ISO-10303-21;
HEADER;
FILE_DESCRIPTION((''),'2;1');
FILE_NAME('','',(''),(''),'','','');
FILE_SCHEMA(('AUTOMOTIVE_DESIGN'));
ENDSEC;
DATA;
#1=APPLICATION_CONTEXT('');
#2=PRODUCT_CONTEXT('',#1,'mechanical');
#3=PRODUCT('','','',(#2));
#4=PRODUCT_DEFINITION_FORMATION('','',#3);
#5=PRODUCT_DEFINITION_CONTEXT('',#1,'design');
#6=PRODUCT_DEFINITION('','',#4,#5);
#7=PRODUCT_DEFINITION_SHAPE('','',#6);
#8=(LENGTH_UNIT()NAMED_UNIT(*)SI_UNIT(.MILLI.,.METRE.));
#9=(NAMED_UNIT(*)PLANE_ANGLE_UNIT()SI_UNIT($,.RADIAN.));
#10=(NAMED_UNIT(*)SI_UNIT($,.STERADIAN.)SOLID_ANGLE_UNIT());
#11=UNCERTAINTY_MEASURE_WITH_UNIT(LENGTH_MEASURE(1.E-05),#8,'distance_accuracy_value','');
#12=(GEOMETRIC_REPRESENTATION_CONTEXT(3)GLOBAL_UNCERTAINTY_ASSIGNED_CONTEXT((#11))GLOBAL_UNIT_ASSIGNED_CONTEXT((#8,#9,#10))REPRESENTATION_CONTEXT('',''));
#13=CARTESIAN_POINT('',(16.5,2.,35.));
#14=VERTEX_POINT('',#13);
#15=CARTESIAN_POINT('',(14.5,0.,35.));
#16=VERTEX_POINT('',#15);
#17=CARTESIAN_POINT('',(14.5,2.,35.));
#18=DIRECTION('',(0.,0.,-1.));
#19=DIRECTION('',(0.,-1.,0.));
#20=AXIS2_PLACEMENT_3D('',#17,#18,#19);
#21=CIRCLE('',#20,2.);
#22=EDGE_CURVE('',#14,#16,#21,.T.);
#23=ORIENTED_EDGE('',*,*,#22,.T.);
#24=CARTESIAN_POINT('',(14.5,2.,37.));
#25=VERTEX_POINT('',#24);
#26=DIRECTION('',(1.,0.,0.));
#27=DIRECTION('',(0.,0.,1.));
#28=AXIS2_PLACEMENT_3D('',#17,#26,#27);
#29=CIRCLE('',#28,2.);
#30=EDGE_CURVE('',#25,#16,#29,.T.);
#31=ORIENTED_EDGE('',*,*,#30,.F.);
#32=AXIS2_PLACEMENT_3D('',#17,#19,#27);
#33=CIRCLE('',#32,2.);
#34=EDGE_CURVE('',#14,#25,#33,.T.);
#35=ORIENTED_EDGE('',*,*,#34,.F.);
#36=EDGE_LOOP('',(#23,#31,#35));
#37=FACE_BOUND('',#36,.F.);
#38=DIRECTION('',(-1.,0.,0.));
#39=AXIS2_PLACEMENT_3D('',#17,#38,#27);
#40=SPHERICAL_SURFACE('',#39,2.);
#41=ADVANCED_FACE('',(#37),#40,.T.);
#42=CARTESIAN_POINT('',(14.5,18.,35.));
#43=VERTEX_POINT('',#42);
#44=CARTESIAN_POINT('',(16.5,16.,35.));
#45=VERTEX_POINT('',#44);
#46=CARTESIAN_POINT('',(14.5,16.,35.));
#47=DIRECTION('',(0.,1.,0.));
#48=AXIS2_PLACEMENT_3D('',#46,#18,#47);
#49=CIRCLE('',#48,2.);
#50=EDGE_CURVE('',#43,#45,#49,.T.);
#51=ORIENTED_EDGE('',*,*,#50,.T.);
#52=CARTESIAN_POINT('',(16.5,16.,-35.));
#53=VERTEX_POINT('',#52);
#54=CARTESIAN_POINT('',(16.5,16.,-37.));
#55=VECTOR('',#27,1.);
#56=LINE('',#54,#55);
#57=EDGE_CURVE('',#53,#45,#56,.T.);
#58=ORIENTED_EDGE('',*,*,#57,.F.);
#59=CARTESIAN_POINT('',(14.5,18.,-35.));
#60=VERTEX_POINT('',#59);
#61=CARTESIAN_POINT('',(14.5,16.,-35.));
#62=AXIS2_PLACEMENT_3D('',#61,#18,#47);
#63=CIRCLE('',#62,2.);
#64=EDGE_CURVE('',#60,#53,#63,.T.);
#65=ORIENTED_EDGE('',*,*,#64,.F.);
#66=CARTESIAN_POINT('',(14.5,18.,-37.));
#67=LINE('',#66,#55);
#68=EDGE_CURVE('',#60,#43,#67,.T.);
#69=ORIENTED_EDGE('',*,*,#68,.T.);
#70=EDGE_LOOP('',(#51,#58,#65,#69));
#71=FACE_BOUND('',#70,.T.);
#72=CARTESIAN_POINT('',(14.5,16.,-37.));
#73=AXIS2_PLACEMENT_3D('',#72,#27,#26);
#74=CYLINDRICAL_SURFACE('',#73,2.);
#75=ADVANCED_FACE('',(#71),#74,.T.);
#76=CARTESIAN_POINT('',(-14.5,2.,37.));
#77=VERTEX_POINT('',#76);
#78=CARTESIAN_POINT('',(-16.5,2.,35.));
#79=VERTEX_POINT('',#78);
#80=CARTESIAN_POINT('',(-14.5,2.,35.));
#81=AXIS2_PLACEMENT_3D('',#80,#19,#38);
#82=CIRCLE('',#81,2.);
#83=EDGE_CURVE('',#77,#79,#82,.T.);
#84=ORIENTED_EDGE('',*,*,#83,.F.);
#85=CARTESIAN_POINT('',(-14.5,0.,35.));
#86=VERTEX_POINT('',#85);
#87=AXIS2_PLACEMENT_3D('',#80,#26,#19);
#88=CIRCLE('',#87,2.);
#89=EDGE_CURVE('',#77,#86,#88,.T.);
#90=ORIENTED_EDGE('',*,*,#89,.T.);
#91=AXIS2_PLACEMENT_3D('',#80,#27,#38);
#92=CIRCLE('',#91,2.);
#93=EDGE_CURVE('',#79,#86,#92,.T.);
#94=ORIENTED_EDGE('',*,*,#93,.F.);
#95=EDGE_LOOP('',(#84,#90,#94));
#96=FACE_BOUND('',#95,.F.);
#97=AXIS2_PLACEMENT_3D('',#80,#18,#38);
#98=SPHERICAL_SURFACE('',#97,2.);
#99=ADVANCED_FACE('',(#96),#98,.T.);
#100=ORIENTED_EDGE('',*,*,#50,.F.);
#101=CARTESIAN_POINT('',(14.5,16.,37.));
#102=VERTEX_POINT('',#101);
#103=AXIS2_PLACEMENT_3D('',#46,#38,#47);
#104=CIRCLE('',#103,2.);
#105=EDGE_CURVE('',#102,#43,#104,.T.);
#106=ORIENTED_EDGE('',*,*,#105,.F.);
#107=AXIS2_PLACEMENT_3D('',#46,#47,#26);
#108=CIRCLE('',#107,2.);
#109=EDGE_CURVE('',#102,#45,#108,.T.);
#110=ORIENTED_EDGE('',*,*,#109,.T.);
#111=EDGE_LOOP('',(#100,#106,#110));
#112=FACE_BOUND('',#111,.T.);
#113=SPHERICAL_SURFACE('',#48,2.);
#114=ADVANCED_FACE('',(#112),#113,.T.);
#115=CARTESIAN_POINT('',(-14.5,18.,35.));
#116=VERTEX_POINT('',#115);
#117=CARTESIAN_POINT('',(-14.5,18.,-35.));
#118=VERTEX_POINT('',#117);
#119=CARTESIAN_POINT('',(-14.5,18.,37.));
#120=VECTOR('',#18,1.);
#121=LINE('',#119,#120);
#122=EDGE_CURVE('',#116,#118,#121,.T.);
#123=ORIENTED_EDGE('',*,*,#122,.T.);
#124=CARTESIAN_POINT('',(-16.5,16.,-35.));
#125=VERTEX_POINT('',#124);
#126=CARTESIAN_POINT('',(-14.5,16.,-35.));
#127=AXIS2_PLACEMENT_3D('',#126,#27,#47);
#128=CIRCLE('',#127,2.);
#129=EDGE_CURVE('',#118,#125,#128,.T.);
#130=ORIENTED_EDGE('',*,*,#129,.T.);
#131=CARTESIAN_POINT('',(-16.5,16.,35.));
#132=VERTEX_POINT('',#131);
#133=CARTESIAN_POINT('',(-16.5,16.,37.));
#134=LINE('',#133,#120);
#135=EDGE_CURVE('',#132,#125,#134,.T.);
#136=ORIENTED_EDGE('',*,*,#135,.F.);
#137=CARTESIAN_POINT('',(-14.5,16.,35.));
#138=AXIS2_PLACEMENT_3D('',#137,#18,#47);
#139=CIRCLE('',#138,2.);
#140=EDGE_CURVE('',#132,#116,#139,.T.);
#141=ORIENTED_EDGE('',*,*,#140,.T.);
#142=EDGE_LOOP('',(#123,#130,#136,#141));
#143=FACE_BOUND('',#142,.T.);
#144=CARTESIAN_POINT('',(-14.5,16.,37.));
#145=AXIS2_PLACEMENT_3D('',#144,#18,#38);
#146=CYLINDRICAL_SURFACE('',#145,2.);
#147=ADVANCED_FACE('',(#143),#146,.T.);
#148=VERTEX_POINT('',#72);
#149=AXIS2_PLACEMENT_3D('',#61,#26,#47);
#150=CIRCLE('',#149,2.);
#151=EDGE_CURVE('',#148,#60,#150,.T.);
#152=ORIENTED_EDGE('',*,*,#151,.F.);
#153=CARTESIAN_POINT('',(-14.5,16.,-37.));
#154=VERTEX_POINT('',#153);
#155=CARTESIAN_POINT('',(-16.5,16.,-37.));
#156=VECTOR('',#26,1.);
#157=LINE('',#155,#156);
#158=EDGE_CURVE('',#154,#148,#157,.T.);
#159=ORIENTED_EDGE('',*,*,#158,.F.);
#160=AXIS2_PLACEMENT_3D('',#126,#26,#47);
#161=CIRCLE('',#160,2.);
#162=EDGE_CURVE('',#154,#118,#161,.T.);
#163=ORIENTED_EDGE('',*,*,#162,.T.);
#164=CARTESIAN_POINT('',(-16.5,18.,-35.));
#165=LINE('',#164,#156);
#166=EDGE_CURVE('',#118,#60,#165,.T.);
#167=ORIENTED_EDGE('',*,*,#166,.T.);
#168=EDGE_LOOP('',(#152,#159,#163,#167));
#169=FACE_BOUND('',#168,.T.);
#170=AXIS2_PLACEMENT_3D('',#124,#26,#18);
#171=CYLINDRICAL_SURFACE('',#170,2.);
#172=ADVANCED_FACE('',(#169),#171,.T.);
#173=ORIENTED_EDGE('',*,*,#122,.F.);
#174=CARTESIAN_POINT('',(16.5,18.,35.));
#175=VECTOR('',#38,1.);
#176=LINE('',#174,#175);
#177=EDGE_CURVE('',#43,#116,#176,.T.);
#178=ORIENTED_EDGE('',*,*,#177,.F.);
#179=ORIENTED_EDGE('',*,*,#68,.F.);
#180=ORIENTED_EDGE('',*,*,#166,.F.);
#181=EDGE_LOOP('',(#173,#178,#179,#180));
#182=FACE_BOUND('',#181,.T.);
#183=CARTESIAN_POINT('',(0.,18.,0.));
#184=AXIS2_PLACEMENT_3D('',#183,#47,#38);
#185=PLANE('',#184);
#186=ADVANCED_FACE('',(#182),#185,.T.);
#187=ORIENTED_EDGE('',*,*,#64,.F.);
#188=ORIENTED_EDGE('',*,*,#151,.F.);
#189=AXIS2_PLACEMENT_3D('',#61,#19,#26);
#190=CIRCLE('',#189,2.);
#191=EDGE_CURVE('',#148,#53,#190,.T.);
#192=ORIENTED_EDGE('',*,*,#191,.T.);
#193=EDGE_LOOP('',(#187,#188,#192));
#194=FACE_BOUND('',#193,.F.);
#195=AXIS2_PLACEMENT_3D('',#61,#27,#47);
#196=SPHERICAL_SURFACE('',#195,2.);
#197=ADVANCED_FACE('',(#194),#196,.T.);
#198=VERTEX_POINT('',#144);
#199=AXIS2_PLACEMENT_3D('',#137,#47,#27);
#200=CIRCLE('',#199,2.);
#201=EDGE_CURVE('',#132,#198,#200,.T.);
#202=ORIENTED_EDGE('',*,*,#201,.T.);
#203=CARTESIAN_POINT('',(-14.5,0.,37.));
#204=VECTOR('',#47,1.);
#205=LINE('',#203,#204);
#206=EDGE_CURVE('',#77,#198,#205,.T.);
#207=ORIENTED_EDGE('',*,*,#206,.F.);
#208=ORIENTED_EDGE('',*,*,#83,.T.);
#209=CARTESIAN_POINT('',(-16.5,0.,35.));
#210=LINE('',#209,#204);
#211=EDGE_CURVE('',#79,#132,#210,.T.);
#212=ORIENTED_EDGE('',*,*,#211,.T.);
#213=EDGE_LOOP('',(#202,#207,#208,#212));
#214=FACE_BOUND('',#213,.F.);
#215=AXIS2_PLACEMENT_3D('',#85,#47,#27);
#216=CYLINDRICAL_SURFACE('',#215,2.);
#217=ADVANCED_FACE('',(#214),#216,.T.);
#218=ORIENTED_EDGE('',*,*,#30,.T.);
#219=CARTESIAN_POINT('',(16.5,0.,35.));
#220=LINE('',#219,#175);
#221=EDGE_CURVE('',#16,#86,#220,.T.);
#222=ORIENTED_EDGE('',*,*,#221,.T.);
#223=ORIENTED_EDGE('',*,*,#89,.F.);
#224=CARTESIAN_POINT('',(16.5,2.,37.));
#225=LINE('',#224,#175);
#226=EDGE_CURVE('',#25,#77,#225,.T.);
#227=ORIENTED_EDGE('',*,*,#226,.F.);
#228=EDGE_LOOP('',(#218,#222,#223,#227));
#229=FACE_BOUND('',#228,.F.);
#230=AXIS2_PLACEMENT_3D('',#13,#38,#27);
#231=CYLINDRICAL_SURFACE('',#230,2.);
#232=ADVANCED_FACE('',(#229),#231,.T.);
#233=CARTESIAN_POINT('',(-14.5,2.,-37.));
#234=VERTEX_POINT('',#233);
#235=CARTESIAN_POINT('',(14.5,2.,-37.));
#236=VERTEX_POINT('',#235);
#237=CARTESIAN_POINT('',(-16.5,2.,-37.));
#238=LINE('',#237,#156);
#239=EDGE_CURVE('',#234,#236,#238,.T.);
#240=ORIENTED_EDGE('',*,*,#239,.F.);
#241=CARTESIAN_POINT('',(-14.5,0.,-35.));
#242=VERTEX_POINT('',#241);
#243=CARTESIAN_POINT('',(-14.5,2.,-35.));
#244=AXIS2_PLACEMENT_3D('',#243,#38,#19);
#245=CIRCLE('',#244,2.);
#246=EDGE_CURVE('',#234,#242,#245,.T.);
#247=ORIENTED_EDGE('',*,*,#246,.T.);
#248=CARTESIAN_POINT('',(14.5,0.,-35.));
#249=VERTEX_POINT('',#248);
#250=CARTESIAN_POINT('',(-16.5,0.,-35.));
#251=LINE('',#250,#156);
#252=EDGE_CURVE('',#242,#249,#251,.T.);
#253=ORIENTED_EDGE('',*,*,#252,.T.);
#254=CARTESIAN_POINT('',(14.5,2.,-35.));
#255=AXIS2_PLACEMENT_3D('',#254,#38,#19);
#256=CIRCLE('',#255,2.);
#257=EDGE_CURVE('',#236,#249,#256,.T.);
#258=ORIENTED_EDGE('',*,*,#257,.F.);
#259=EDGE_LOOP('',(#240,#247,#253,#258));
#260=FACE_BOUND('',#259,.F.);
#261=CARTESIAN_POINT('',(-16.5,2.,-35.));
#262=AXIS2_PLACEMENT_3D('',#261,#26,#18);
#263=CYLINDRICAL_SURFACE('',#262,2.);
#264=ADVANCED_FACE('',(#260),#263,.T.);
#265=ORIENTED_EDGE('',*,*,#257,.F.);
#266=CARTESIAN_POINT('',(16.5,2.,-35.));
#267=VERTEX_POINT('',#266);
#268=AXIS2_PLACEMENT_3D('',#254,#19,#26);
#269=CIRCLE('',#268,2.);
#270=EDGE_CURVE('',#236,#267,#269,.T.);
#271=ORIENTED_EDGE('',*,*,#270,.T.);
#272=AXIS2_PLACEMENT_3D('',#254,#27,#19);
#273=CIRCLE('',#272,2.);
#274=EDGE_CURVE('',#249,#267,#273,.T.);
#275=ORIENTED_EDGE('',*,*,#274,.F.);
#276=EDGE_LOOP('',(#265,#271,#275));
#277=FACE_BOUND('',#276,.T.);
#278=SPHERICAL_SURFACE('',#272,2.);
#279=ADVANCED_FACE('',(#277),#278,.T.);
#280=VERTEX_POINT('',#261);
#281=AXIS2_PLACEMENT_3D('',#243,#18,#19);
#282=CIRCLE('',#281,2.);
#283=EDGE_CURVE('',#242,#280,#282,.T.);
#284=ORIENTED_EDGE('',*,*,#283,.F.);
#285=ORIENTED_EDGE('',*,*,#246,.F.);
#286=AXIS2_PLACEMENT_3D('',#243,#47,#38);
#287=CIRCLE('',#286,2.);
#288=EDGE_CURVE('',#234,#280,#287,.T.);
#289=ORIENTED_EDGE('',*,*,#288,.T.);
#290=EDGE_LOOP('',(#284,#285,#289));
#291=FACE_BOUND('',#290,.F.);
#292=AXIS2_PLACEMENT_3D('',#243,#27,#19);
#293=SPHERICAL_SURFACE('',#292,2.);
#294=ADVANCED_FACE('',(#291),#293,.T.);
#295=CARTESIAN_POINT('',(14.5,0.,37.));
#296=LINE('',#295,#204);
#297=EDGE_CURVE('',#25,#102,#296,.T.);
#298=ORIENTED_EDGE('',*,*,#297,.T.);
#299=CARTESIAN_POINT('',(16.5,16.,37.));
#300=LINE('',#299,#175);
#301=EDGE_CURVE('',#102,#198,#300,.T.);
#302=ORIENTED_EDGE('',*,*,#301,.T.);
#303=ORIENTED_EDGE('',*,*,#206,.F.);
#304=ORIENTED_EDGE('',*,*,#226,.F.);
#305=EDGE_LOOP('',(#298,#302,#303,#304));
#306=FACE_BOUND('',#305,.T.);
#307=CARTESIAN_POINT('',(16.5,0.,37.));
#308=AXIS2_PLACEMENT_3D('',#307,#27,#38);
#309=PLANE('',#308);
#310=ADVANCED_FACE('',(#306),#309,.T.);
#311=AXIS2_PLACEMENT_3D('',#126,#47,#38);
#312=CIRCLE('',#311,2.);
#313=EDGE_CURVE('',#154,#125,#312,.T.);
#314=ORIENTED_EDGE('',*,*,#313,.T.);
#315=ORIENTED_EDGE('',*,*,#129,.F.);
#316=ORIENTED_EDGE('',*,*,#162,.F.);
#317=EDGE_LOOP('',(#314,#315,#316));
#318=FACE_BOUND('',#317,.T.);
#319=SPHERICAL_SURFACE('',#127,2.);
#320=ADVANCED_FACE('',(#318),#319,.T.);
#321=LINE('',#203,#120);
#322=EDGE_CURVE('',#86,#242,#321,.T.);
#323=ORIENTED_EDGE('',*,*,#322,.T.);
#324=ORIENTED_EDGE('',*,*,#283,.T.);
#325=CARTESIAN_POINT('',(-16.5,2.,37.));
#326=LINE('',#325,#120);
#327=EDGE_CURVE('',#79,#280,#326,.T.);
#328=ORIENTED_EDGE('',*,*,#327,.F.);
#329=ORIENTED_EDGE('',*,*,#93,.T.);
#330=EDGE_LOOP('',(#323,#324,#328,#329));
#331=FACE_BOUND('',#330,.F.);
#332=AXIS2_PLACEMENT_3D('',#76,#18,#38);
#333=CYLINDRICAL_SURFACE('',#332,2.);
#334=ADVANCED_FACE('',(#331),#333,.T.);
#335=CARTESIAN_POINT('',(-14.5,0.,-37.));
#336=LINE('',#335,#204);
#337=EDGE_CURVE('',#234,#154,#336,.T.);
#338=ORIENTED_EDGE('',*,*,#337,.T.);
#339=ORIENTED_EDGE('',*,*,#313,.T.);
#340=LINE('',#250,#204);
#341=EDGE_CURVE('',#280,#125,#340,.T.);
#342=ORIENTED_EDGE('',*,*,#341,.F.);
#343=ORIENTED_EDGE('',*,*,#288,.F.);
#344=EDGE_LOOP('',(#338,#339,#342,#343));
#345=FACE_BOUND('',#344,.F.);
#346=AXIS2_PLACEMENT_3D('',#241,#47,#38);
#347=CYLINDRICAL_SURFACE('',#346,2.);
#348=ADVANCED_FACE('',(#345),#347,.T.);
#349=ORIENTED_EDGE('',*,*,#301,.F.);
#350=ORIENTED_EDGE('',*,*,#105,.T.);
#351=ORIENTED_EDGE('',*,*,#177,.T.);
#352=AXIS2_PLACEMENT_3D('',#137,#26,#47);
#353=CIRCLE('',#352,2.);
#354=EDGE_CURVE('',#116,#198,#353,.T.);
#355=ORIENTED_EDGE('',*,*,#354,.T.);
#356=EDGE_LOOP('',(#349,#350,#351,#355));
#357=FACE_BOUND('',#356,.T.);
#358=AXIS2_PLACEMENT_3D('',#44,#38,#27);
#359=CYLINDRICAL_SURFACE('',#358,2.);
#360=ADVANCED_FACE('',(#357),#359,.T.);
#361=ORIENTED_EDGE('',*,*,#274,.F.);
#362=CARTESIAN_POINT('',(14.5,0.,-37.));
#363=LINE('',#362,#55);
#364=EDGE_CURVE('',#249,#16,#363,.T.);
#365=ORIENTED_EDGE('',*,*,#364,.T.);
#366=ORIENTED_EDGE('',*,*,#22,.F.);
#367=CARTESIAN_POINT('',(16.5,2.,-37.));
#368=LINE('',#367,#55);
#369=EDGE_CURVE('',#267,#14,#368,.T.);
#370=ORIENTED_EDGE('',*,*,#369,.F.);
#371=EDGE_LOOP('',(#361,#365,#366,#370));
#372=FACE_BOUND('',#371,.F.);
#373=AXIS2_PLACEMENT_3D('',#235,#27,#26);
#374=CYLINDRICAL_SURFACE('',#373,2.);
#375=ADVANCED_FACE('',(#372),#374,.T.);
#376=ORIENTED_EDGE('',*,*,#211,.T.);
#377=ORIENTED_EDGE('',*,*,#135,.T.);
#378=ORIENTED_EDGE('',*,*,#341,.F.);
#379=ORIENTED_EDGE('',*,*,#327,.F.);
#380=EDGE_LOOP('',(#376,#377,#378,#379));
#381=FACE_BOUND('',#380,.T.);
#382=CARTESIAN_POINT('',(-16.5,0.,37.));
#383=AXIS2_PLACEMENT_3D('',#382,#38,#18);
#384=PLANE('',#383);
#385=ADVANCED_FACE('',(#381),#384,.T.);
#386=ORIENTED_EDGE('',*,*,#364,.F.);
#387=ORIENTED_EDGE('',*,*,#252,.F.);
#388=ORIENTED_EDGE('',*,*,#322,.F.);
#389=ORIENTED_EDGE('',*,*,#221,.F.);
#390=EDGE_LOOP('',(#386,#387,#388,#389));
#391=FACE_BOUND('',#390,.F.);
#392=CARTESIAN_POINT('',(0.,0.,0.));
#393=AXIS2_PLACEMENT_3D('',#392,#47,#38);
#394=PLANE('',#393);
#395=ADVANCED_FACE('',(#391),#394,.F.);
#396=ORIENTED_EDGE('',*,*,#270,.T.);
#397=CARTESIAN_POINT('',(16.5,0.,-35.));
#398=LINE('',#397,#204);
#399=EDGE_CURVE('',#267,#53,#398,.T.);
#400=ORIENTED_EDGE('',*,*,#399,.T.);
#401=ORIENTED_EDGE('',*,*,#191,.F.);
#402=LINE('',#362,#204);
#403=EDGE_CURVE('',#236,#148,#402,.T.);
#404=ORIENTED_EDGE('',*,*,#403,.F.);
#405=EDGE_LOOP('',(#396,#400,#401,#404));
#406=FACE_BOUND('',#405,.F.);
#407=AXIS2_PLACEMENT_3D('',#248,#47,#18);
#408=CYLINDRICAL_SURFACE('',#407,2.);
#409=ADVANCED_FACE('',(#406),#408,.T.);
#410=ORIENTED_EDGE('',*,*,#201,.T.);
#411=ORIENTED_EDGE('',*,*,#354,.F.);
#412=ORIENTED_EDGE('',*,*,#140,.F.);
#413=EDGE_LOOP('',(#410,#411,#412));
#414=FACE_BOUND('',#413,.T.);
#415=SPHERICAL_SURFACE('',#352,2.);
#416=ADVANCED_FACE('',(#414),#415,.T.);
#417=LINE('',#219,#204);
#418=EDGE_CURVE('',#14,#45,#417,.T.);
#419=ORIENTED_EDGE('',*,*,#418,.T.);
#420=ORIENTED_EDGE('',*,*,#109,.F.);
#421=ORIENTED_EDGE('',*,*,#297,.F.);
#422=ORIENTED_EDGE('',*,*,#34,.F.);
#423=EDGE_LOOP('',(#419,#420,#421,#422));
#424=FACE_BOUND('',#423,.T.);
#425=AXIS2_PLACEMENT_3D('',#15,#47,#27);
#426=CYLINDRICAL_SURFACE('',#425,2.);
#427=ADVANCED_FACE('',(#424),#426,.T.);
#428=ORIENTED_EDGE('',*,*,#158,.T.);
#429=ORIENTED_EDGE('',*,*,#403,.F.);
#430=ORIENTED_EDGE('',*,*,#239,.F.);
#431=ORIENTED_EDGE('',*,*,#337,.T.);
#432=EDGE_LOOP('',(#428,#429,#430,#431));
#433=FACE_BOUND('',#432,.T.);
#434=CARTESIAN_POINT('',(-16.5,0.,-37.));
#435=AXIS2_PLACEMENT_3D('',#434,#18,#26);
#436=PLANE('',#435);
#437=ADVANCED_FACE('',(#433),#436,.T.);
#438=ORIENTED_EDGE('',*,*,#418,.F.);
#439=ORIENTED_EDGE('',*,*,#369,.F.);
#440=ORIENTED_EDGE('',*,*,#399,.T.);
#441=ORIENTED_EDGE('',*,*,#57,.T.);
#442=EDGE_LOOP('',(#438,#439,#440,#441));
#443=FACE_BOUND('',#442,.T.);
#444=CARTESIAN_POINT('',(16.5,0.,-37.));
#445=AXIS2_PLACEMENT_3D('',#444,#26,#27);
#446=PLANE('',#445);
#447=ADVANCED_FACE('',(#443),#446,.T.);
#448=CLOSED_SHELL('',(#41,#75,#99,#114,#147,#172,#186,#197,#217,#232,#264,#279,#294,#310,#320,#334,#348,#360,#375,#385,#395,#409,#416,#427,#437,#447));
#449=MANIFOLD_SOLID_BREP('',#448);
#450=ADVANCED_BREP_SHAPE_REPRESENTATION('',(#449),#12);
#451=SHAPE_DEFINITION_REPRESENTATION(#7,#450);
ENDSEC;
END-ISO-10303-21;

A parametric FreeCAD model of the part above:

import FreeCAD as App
import Part
import Sketcher


def add_polygon(sketch, points):
    """Adds a closed chain of lines whose ends are joined by coincident constraints."""
    first, n = sketch.GeometryCount, len(points)
    for a, b in zip(points, points[1:] + points[:1]):
        sketch.addGeometry(Part.LineSegment(App.Vector(*a, 0), App.Vector(*b, 0)), False)
    for i in range(n):
        sketch.addConstraint(Sketcher.Constraint("Coincident", first + i, 2, first + (i + 1) % n, 1))

doc = App.newDocument("Part")
body = doc.addObject("PartDesign::Body", "Body")

sketch1 = body.newObject("Sketcher::SketchObject", "Sketch")
sketch1.AttachmentSupport = (doc.getObject("XZ_Plane"), [""])
sketch1.MapMode = "FlatFace"
add_polygon(sketch1, [(-16, 37), (16, 37), (16, -37), (-16, -37)])
sketch1.addConstraint([
    Sketcher.Constraint("Horizontal", 0),
    Sketcher.Constraint("Vertical", 1),
    Sketcher.Constraint("Horizontal", 2),
    Sketcher.Constraint("Vertical", 3),
    Sketcher.Constraint("Symmetric", 0, 2, 2, 2, -1, 1),
    Sketcher.Constraint("DistanceX", 0, 1, 0, 2, 33.0),
    Sketcher.Constraint("DistanceY", 1, 2, 1, 1, 74.0),
])
pad1 = body.newObject("PartDesign::Pad", "Pad")
pad1.Profile = sketch1
pad1.Length = 18
pad1.Reversed = True
doc.recompute()

fillet = body.newObject("PartDesign::Fillet", "Fillet")
fillet.Base = (pad1, ["Edge1"])
fillet.UseAllEdges = True
fillet.Radius = 2

doc.recompute()
